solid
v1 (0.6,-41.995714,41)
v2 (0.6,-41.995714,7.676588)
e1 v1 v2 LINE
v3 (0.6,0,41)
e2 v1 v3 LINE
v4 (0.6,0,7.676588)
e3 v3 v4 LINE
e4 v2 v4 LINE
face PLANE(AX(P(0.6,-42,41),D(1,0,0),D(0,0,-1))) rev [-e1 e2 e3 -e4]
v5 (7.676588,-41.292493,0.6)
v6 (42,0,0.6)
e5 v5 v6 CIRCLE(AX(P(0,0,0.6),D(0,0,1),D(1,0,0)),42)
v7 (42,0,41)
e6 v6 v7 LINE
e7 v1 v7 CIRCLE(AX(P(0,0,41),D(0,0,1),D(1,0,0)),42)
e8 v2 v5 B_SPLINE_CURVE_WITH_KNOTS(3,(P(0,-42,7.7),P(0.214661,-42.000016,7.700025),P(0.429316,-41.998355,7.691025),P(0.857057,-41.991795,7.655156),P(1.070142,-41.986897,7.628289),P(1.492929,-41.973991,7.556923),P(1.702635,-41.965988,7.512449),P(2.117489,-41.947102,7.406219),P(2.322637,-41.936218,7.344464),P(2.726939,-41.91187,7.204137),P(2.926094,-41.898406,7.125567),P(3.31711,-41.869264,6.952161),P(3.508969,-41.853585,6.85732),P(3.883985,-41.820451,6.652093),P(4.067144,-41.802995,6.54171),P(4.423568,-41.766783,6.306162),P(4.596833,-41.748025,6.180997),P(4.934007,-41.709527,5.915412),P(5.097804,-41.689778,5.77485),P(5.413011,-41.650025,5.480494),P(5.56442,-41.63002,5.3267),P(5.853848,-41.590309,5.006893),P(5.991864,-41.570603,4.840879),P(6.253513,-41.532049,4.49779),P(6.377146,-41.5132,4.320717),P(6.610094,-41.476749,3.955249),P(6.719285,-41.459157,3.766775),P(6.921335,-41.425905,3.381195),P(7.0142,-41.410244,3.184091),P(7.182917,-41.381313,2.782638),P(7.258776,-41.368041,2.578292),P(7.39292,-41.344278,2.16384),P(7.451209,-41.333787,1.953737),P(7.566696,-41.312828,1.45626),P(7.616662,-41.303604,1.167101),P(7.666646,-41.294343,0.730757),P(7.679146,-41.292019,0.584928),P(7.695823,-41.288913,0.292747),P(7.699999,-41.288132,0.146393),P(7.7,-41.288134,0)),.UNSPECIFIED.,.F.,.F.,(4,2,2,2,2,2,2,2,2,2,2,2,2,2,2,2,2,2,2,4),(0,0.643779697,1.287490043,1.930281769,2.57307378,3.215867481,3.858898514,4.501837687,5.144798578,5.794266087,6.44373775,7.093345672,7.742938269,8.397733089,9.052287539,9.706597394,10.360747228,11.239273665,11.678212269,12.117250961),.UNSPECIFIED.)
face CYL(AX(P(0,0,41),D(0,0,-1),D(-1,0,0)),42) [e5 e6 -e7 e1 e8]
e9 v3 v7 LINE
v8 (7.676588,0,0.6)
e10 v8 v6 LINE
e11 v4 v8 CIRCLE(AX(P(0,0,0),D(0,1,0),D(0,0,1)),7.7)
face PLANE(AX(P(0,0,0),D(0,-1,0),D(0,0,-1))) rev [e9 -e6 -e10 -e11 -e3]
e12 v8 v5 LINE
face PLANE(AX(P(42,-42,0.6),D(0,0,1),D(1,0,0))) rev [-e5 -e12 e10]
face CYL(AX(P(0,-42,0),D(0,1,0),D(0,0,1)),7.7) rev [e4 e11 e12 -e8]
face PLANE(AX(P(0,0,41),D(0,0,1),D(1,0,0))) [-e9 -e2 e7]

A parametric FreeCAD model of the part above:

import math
import FreeCAD as App
import Part
import Sketcher
Q = App.Units.Quantity

doc = App.newDocument("Part")
params = doc.addObject("Spreadsheet::Sheet", "Params")
for row, (alias, value) in enumerate([
    ("sketch1_diameter", "84 mm"),
    ("pad1_length", "41 mm"),
    ("sketch2_radius", "42 mm"),
    ("sketch3_diameter", "15.4 mm"),
    ("sketch4_width", "0.6 mm"),
], start=1):
    params.set(f"A{row}", alias)
    params.set(f"B{row}", "=" + value)
    params.setAlias(f"B{row}", alias)

body = doc.addObject("PartDesign::Body", "Body")

sketch1 = body.newObject("Sketcher::SketchObject", "Sketch")
sketch1.AttachmentSupport = (doc.getObject("XY_Plane"), [""])
sketch1.MapMode = "FlatFace"
sketch1.addGeometry(Part.Circle(App.Vector(0, 0, 0), App.Vector(0, 0, 1), 42), False)
sketch1.addConstraint([
    Sketcher.Constraint("Coincident", 0, 3, -1, 1),
    Sketcher.Constraint("Diameter", 0, Q("84 mm")),
])
sketch1.setExpression("Constraints[1]", "Params.sketch1_diameter")
pad1 = body.newObject("PartDesign::Pad", "Pad")
pad1.Profile = sketch1
pad1.setExpression("Length", "Params.pad1_length")

sketch2 = body.newObject("Sketcher::SketchObject", "Sketch001")
sketch2.AttachmentSupport = (doc.getObject("XY_Plane"), [""])
sketch2.MapMode = "FlatFace"
sketch2.AttachmentOffset = App.Placement(App.Vector(0, 0, 41), App.Rotation())
sketch2.addGeometry([
    Part.LineSegment(App.Vector(0, 0, 0), App.Vector(42, 0, 0)),
    Part.ArcOfCircle(Part.Circle(App.Vector(0, 0, 0), App.Vector(0, 0, 1), 42), math.radians(0), math.radians(270)),
    Part.LineSegment(App.Vector(0, -42, 0), App.Vector(0, 0, 0)),
], False)
sketch2.addConstraint([
    Sketcher.Constraint("Coincident", 0, 2, 1, 1),
    Sketcher.Constraint("Coincident", 1, 2, 2, 1),
    Sketcher.Constraint("Coincident", 2, 2, 0, 1),
    Sketcher.Constraint("Horizontal", 0),
    Sketcher.Constraint("Vertical", 2),
    Sketcher.Constraint("Coincident", 1, 3, -1, 1),
    Sketcher.Constraint("Coincident", 2, 2, -1, 1),
    Sketcher.Constraint("Radius", 1, Q("42 mm")),
])
sketch2.setExpression("Constraints[7]", "Params.sketch2_radius")
pocket1 = body.newObject("PartDesign::Pocket", "Pocket")
pocket1.Profile = sketch2
pocket1.Type = "ThroughAll"

sketch3 = body.newObject("Sketcher::SketchObject", "Sketch002")
sketch3.AttachmentSupport = (doc.getObject("XZ_Plane"), [""])
sketch3.MapMode = "FlatFace"
sketch3.addGeometry(Part.Circle(App.Vector(0, 0, 0), App.Vector(0, 0, 1), 8), False)
sketch3.addConstraint([
    Sketcher.Constraint("Coincident", 0, 3, -1, 1),
    Sketcher.Constraint("Diameter", 0, Q("15.4 mm")),
])
sketch3.setExpression("Constraints[1]", "Params.sketch3_diameter")
pocket2 = body.newObject("PartDesign::Pocket", "Pocket001")
pocket2.Profile = sketch3
pocket2.Type = "ThroughAll"
pocket2.Reversed = True

sketch4 = body.newObject("Sketcher::SketchObject", "Sketch003")
sketch4.AttachmentSupport = (doc.getObject("XZ_Plane"), [""])
sketch4.MapMode = "FlatFace"
sketch4.addGeometry([
    Part.LineSegment(App.Vector(0, 6.8, 0), App.Vector(0, 41, 0)),
    Part.LineSegment(App.Vector(0, 41, 0), App.Vector(0.6, 41, 0)),
    Part.LineSegment(App.Vector(0.6, 41, 0), App.Vector(0.6, 6.8, 0)),
    Part.LineSegment(App.Vector(0.6, 6.8, 0), App.Vector(0, 6.8, 0)),
    Part.LineSegment(App.Vector(6.3, 0, 0), App.Vector(6.3, 0.6, 0)),
    Part.LineSegment(App.Vector(6.3, 0.6, 0), App.Vector(42, 0.6, 0)),
    Part.LineSegment(App.Vector(42, 0.6, 0), App.Vector(42, 0, 0)),
    Part.LineSegment(App.Vector(42, 0, 0), App.Vector(6.3, 0, 0)),
], False)
sketch4.addConstraint([
    Sketcher.Constraint("Coincident", 0, 2, 1, 1),
    Sketcher.Constraint("Coincident", 1, 2, 2, 1),
    Sketcher.Constraint("Coincident", 2, 2, 3, 1),
    Sketcher.Constraint("Coincident", 3, 2, 0, 1),
    Sketcher.Constraint("Coincident", 4, 2, 5, 1),
    Sketcher.Constraint("Coincident", 5, 2, 6, 1),
    Sketcher.Constraint("Coincident", 6, 2, 7, 1),
    Sketcher.Constraint("Coincident", 7, 2, 4, 1),
    Sketcher.Constraint("Vertical", 0),
    Sketcher.Constraint("Horizontal", 1),
    Sketcher.Constraint("Vertical", 2),
    Sketcher.Constraint("Horizontal", 3),
    Sketcher.Constraint("Vertical", 4),
    Sketcher.Constraint("Horizontal", 5),
    Sketcher.Constraint("Vertical", 6),
    Sketcher.Constraint("Horizontal", 7),
    Sketcher.Constraint("PointOnObject", 0, 2, -2),
    Sketcher.Constraint("PointOnObject", 6, 2, -1),
    Sketcher.Constraint("Equal", 3, 4),
    Sketcher.Constraint("DistanceX", 1, 1, 1, 2, Q("0.6 mm")),
    Sketcher.Constraint("DistanceY", -1, 1, 0, 2, Q("41 mm")),
    Sketcher.Constraint("DistanceX", -1, 1, 5, 2, Q("42 mm")),
    Sketcher.Constraint("DistanceX", 5, 1, 5, 2, Q("35.741544 mm")),
    Sketcher.Constraint("DistanceY", 0, 1, 0, 2, Q("34.211955 mm")),
])
sketch4.setExpression("Constraints[19]", "Params.sketch4_width")
pocket3 = body.newObject("PartDesign::Pocket", "Pocket002")
pocket3.Profile = sketch4
pocket3.Type = "ThroughAll"
pocket3.Reversed = True

doc.recompute()
